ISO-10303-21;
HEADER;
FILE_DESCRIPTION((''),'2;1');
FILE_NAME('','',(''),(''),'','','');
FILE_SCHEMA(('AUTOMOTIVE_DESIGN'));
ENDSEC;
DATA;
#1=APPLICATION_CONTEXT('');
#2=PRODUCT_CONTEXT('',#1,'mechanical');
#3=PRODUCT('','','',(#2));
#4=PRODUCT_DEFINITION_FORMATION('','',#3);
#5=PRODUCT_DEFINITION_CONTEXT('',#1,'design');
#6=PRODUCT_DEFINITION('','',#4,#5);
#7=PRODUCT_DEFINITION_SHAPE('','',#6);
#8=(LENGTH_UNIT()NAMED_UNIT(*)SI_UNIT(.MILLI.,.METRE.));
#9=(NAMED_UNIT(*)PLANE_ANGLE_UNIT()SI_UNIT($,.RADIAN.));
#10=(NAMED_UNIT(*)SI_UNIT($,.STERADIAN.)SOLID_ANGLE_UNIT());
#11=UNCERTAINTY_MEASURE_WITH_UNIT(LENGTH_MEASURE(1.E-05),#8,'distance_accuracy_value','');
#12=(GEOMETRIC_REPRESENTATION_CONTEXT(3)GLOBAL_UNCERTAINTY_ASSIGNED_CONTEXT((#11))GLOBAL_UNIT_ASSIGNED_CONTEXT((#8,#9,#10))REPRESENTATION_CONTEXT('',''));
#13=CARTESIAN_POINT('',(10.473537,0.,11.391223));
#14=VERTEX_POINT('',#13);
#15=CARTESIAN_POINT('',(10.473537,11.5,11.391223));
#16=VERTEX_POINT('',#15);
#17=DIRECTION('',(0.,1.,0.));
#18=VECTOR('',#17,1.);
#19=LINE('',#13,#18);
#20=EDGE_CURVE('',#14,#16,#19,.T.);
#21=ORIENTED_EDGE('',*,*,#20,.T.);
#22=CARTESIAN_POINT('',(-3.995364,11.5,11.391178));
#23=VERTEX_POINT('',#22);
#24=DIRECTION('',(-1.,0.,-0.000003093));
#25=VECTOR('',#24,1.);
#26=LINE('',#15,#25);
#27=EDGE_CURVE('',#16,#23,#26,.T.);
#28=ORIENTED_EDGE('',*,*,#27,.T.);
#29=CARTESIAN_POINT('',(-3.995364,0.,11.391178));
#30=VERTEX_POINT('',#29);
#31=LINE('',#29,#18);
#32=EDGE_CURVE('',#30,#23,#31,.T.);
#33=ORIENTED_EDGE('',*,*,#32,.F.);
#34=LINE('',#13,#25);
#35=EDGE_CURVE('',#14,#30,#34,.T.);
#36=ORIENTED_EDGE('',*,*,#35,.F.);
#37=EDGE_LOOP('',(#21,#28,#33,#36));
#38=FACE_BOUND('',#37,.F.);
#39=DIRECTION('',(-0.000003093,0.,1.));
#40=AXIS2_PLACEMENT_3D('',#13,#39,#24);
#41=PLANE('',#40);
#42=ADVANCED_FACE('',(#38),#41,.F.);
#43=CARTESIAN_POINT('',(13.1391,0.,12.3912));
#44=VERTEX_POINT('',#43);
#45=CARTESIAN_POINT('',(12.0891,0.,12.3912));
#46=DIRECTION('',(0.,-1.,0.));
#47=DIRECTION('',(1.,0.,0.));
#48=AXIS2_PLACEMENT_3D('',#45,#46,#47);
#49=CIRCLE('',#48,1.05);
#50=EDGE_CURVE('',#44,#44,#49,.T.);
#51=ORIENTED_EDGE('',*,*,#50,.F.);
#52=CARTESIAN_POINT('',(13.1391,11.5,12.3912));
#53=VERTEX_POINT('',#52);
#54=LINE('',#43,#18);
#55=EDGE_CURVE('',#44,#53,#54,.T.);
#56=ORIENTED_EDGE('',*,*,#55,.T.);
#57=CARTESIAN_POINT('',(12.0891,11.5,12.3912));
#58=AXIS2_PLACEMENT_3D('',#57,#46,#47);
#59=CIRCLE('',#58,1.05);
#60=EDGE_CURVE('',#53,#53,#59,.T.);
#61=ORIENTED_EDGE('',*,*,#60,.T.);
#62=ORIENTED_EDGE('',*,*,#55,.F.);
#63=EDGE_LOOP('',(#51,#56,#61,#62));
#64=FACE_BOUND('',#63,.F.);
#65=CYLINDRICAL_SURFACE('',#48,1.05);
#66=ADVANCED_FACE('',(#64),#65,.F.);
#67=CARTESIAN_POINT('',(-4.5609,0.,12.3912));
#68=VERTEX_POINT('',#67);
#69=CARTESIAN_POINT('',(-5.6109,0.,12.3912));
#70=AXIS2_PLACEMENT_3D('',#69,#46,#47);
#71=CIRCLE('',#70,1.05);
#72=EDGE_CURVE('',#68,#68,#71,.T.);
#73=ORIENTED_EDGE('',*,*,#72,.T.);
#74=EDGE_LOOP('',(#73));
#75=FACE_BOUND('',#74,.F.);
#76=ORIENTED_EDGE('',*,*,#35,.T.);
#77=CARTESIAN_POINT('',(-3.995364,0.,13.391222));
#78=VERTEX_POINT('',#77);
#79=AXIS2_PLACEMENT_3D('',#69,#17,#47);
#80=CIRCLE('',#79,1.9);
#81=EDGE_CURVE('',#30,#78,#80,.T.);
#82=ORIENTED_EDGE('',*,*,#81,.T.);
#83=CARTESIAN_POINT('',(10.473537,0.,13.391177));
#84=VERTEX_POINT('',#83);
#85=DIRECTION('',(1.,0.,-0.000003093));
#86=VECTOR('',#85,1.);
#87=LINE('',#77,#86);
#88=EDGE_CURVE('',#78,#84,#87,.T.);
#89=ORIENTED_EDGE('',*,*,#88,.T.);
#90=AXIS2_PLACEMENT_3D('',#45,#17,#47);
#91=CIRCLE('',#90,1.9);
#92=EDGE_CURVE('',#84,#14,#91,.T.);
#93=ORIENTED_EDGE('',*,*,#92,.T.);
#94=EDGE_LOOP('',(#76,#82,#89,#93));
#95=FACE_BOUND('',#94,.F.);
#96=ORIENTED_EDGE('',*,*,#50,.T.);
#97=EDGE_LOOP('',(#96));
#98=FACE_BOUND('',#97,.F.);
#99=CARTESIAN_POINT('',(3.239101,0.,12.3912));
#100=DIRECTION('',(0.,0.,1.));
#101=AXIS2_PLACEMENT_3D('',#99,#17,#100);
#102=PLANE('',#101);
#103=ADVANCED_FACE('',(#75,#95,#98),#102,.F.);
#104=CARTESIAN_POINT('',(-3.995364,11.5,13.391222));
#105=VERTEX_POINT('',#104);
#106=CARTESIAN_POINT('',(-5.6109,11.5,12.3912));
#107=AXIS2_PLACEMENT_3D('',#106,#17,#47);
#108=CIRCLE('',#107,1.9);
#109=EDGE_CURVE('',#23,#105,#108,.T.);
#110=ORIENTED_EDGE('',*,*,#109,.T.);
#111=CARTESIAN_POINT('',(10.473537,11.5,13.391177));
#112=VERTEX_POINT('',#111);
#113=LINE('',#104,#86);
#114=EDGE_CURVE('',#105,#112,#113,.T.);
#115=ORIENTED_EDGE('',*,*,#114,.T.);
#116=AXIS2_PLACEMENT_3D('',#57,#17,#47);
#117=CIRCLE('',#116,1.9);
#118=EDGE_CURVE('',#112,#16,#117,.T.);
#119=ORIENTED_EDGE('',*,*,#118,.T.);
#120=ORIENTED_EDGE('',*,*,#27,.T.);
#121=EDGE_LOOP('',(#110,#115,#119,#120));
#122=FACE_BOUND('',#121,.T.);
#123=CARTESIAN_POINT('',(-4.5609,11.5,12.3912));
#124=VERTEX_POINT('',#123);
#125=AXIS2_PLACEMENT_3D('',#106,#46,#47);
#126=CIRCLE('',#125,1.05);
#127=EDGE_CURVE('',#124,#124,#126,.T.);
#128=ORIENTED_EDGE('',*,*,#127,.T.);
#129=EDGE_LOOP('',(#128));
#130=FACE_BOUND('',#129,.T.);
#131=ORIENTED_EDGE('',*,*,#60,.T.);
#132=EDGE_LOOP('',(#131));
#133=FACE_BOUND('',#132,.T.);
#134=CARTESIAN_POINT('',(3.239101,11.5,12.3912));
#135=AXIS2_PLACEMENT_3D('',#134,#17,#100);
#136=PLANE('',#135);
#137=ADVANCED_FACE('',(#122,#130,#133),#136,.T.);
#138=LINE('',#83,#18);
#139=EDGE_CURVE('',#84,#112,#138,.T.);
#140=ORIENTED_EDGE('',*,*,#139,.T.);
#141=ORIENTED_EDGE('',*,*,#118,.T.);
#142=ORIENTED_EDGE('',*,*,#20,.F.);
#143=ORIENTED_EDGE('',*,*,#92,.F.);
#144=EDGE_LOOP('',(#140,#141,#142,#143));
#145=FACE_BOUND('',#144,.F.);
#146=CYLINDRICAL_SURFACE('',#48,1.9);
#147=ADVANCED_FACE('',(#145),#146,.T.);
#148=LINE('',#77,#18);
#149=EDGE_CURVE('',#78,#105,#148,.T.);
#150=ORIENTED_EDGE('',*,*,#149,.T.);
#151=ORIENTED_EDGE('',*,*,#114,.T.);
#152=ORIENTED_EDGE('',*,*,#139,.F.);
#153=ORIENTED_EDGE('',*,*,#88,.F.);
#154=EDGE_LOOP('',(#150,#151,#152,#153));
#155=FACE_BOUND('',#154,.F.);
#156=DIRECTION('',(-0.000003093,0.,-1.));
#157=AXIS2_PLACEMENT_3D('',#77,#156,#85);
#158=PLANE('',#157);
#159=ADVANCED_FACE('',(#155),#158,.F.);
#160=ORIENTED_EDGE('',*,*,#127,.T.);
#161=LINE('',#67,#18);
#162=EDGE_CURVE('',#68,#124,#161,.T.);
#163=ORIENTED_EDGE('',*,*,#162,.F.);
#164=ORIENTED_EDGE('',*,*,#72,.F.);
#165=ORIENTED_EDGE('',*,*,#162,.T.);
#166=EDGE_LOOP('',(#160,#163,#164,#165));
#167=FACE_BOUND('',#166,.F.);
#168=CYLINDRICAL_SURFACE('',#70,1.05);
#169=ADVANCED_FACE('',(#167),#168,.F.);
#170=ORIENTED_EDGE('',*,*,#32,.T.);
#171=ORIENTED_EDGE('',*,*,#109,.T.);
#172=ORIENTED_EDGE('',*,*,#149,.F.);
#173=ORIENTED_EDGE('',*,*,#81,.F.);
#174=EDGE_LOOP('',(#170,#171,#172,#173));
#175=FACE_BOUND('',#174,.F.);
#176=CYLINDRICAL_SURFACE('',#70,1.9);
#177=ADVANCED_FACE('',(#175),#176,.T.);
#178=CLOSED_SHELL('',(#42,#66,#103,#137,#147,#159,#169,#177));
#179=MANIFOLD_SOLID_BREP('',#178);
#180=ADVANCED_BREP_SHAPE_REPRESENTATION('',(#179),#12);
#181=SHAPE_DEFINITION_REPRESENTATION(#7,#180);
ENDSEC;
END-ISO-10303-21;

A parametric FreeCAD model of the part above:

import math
import FreeCAD as App
import Part
import Sketcher
from FreeCAD import Vector

doc = App.newDocument("Part")
body = doc.addObject("PartDesign::Body", "Body")

# Sketch on XZ plane
sketch1 = body.newObject("Sketcher::SketchObject", "Sketch")
sketch1.AttachmentSupport = (doc.getObject("XZ_Plane"), [""])
sketch1.MapMode = "FlatFace"
sketch1.addGeometry([
    Part.LineSegment(Vector(10.4735, 13.3912, 0), Vector(-3.9954, 13.3912, 0)),  # 0
    Part.ArcOfCircle(Part.Circle(Vector(-5.6109, 12.3912, 0), Vector(0, 0, 1), 1.899958), math.radians(31.757649), math.radians(328.242351)),  # 1
    Part.LineSegment(Vector(-3.9954, 11.3912, 0), Vector(10.4735, 11.3912, 0)),  # 2
    Part.ArcOfCircle(Part.Circle(Vector(12.0891, 12.3912, 0), Vector(0, 0, 1), 1.900043), math.radians(-148.243939), math.radians(148.243939)),  # 3
    Part.Circle(Vector(-5.6109, 12.3912, 0), Vector(0, 0, 1), 1.05),  # 4
    Part.Circle(Vector(12.0891, 12.3912, 0), Vector(0, 0, 1), 1.05),  # 5
], False)
sketch1.addConstraint([
    Sketcher.Constraint("Coincident", 0, 2, 1, 1),
    Sketcher.Constraint("Coincident", 1, 2, 2, 1),
    Sketcher.Constraint("Coincident", 2, 2, 3, 1),
    Sketcher.Constraint("Coincident", 3, 2, 0, 1),
    Sketcher.Constraint("Horizontal", 0),
    Sketcher.Constraint("Horizontal", 2),
    Sketcher.Constraint("Coincident", 4, 3, 1, 3),
    Sketcher.Constraint("Coincident", 5, 3, 3, 3),
    Sketcher.Constraint("Equal", 1, 3),
    Sketcher.Constraint("Equal", 4, 5),
    Sketcher.Constraint("Horizontal", 1, 3, 3, 3),
    Sketcher.Constraint("Vertical", 0, 2, 1, 2),
    Sketcher.Constraint("Diameter", 4, 2.1),
    Sketcher.Constraint("Radius", 1, 1.9),
    Sketcher.Constraint("DistanceY", 1, 3, 0, 2, 1.0),
    Sketcher.Constraint("DistanceX", 1, 3, 3, 3, 17.7),
    Sketcher.Constraint("DistanceX", 1, 3, -1, 1, 5.611),
    Sketcher.Constraint("DistanceY", -1, 1, 1, 3, 12.3912),
])
pad1 = body.newObject("PartDesign::Pad", "Pad")
pad1.Profile = sketch1
pad1.Length = 11.5
pad1.Reversed = True

doc.recompute()
